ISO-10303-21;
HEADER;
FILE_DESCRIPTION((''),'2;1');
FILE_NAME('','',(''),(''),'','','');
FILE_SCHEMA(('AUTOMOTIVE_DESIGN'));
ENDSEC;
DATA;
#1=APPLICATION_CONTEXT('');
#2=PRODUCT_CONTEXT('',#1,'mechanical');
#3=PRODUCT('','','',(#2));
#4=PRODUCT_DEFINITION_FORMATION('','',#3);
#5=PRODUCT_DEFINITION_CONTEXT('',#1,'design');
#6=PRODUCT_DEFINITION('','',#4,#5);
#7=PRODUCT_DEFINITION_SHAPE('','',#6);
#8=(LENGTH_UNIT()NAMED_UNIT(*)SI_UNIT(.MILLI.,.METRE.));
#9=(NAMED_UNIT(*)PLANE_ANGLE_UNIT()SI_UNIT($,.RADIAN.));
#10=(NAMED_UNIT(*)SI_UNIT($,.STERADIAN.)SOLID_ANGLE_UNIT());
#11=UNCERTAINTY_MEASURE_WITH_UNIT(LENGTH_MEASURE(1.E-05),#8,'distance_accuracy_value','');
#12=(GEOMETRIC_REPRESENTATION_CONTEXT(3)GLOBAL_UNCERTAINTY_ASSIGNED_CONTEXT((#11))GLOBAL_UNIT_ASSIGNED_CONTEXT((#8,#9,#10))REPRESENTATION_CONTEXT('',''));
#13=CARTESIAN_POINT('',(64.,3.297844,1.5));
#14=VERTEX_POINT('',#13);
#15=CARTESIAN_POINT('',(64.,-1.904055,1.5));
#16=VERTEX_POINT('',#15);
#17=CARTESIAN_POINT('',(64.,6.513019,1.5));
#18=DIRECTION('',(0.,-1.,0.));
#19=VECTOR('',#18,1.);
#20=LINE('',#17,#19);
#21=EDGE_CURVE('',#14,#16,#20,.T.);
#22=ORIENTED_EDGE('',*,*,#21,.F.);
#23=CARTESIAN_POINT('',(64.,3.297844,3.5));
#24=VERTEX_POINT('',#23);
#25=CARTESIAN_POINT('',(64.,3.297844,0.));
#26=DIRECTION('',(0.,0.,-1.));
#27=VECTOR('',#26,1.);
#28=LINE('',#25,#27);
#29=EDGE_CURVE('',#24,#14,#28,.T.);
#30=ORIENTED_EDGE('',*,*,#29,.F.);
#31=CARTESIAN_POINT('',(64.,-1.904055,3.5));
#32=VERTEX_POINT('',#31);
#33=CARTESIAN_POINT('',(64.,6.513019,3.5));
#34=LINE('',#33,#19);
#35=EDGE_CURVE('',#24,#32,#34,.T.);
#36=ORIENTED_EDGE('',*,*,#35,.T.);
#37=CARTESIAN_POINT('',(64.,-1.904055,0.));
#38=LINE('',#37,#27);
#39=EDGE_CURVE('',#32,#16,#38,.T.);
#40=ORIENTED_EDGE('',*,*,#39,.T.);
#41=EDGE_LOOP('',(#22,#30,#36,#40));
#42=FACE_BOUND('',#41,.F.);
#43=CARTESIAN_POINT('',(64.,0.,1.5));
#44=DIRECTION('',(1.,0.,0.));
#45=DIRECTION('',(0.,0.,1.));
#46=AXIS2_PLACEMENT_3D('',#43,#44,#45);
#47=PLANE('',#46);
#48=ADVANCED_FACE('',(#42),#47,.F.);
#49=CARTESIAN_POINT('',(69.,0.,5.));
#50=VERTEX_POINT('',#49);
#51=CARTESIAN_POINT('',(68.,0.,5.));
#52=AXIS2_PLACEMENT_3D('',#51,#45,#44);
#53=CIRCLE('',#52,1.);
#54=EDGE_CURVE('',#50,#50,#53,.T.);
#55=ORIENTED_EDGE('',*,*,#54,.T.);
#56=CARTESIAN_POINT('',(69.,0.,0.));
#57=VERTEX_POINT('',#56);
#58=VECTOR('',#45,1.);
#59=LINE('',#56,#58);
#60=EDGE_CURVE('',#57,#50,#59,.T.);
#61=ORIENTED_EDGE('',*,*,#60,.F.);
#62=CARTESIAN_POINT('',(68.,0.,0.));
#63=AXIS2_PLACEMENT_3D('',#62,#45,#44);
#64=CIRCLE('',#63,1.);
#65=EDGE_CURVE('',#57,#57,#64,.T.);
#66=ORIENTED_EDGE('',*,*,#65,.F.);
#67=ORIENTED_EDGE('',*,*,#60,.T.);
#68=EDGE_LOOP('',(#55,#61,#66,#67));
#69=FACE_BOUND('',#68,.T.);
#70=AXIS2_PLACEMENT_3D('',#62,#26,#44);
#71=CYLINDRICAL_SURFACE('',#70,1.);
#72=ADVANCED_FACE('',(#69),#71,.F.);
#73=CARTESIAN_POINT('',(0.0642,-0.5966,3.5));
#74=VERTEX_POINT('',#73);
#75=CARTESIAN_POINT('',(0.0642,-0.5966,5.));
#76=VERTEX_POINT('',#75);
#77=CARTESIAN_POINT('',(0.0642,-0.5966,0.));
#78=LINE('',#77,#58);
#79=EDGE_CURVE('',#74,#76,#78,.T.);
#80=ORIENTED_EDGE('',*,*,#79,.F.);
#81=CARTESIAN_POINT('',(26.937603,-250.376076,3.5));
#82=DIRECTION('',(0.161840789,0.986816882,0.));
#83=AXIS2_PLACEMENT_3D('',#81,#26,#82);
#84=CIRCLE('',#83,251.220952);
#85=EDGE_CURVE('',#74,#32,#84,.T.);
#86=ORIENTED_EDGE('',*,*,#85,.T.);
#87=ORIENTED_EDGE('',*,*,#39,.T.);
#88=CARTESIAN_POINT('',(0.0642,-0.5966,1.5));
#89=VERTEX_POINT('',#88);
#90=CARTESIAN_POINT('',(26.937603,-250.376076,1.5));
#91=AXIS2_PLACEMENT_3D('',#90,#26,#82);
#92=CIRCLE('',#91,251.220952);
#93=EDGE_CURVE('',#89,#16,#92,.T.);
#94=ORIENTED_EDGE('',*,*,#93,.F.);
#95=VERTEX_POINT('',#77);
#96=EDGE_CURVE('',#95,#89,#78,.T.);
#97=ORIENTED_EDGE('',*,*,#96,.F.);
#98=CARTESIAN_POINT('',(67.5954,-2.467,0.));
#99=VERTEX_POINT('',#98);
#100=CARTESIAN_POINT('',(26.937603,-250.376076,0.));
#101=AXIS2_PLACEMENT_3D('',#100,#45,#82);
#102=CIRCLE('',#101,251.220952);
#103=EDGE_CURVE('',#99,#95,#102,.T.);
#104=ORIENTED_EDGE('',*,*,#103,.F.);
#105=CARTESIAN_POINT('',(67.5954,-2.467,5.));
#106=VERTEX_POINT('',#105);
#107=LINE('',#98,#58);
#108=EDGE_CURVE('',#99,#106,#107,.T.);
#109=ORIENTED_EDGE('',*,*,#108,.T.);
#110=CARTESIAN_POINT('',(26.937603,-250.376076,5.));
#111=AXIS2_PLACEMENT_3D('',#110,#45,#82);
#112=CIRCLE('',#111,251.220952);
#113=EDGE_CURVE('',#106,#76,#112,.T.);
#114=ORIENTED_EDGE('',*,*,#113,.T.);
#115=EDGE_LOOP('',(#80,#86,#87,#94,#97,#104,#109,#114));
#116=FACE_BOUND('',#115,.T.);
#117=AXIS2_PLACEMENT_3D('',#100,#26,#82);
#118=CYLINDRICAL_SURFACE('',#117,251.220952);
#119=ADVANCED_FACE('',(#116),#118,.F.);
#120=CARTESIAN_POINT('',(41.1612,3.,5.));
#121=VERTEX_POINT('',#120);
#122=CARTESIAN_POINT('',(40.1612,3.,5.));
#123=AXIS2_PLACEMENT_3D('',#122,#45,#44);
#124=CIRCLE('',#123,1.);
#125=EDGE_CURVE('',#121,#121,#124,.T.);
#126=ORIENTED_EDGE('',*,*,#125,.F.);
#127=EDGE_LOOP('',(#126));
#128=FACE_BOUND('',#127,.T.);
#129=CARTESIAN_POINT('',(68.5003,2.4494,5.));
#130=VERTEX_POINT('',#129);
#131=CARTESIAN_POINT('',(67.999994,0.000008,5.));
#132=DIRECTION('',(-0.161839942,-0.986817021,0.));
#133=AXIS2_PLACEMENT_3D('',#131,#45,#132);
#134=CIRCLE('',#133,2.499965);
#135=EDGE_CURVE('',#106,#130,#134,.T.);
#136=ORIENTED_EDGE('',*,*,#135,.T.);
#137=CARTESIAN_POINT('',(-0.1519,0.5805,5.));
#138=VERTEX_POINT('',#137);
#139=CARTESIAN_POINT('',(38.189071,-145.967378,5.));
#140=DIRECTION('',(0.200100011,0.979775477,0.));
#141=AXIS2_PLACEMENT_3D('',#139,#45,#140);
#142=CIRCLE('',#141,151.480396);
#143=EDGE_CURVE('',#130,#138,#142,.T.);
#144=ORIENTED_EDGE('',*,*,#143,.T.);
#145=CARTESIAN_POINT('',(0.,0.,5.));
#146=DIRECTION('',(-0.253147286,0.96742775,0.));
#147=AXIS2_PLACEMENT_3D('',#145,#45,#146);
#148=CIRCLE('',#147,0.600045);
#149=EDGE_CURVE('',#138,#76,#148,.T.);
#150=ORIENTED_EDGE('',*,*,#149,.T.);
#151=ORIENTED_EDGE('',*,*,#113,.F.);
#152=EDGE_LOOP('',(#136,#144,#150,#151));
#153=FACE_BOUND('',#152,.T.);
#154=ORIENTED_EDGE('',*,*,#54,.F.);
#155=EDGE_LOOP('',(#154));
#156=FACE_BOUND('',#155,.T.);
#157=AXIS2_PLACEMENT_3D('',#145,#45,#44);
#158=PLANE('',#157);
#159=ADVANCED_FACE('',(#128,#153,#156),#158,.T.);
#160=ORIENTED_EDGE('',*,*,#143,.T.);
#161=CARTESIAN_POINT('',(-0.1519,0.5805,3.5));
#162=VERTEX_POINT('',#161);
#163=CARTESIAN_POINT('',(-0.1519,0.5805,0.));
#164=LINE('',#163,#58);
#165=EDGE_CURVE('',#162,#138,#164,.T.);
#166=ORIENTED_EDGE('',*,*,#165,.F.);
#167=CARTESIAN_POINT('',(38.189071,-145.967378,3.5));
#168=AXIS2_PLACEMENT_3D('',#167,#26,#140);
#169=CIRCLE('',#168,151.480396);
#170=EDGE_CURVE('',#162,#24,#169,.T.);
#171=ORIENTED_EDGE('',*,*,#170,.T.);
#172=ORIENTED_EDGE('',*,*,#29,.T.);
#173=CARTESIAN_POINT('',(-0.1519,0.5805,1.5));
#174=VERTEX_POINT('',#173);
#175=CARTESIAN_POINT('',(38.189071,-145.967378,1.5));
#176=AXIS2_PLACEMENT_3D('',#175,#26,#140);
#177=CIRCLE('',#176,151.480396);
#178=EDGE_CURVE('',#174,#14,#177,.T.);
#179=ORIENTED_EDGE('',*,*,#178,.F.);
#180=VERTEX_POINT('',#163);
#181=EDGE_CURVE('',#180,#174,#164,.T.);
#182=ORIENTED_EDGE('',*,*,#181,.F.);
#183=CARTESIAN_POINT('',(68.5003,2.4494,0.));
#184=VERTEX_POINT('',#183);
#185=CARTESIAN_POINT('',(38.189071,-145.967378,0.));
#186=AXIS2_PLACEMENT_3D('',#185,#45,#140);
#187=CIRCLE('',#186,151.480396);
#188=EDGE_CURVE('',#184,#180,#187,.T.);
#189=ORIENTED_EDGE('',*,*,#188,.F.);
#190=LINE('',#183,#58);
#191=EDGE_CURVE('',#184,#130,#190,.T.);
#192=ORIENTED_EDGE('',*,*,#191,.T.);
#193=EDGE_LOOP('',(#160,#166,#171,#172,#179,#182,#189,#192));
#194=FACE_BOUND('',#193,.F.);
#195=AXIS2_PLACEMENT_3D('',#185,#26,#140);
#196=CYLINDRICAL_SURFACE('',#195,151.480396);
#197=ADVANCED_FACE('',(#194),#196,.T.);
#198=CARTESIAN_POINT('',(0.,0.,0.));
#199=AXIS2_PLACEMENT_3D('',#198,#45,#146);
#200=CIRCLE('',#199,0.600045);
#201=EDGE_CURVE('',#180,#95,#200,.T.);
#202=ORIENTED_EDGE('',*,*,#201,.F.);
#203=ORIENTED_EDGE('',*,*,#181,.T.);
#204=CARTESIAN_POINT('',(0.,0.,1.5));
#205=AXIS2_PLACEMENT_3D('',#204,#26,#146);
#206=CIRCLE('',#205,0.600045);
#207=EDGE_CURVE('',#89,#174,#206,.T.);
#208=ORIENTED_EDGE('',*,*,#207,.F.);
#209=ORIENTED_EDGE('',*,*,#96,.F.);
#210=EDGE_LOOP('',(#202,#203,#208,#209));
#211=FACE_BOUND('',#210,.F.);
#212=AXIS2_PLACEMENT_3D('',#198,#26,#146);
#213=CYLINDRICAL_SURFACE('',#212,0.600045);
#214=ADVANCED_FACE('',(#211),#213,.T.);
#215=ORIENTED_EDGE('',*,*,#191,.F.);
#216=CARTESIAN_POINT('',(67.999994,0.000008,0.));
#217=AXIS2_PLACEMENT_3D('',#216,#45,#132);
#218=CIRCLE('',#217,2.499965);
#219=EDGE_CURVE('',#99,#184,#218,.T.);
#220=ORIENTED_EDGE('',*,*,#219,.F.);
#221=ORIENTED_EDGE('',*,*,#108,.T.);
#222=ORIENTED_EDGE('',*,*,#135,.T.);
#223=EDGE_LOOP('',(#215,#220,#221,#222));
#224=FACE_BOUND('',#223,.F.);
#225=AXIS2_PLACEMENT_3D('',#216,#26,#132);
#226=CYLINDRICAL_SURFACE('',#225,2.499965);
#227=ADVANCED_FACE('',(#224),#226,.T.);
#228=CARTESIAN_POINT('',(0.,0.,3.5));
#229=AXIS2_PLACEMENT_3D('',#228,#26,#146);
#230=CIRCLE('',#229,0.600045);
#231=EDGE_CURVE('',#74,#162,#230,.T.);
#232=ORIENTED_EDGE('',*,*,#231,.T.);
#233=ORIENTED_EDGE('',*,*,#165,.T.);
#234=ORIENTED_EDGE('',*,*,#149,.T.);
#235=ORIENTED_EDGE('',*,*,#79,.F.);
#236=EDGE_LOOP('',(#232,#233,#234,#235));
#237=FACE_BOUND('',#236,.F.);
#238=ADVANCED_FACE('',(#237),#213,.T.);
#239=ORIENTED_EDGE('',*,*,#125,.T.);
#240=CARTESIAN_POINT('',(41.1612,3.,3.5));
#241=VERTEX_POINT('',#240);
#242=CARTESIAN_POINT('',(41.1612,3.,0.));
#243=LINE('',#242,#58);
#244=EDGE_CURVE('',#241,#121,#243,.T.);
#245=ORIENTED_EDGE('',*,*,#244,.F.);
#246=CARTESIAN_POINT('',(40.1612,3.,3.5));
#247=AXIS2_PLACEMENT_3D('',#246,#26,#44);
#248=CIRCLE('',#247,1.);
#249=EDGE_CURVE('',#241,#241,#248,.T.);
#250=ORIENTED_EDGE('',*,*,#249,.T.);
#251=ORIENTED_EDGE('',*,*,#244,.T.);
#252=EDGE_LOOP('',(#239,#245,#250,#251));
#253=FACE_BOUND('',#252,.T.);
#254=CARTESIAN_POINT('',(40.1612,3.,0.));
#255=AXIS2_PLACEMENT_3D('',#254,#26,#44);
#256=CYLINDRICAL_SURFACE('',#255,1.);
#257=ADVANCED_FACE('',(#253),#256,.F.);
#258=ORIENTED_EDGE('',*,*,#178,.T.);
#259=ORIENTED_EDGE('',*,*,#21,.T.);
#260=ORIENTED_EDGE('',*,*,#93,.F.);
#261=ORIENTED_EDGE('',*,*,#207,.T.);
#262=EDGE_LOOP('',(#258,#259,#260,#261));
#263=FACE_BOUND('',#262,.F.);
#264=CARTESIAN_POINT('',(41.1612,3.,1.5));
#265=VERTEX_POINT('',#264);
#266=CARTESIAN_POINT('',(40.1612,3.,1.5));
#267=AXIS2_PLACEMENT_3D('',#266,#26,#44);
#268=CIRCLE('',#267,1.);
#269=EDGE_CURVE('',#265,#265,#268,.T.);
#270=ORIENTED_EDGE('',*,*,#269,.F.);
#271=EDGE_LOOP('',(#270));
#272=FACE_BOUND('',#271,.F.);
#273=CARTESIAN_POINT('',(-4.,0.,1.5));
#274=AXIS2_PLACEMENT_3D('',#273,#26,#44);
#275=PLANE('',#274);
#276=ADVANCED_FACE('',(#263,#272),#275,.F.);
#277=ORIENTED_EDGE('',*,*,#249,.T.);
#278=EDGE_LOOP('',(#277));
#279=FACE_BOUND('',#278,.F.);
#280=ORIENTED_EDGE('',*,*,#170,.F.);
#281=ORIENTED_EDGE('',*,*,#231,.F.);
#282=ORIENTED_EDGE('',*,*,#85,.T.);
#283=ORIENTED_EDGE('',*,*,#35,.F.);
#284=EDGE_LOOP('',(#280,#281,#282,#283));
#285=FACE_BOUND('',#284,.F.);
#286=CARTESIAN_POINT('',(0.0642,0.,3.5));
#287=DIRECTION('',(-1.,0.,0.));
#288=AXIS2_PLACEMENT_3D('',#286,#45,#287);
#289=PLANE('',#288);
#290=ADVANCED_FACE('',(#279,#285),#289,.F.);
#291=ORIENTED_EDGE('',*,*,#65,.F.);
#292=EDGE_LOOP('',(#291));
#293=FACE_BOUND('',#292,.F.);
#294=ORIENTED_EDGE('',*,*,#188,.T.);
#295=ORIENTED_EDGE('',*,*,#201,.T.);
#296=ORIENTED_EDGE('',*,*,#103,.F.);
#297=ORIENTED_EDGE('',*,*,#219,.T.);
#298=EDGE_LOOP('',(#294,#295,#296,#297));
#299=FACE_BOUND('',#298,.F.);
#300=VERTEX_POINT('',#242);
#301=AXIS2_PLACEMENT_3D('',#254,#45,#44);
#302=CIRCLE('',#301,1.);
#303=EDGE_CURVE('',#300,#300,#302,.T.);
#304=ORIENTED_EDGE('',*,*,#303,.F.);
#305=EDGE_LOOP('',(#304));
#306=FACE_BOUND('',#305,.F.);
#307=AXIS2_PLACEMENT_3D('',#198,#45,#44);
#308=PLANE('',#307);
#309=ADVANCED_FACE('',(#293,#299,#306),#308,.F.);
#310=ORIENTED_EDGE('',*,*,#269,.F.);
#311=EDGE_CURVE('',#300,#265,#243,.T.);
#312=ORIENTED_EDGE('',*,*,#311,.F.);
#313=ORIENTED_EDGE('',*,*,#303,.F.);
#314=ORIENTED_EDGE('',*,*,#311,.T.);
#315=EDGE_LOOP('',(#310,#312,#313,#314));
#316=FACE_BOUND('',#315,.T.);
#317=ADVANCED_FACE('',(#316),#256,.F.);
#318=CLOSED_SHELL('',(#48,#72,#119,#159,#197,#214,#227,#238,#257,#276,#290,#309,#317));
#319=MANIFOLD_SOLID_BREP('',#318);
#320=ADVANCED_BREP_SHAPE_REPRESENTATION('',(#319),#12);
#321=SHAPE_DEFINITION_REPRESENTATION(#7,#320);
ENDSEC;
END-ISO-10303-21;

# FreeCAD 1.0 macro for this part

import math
import FreeCAD as App
import Part
import Sketcher

V = App.Vector

doc = App.newDocument("Part")
body = doc.addObject("PartDesign::Body", "Body")

sketch1 = body.newObject("Sketcher::SketchObject", "Sketch")
sketch1.AttachmentSupport = (doc.getObject("XY_Plane"), [""])
sketch1.MapMode = "FlatFace"
sketch1.addGeometry([
    Part.ArcOfCircle(Part.Circle(V(38.2, -146, 0), V(0, 0, 1), 151.5), math.radians(78), math.radians(105)),
    Part.ArcOfCircle(Part.Circle(V(0, 0, 0), V(0, 0, 1), 0.6), math.radians(105), math.radians(276)),
    Part.ArcOfCircle(Part.Circle(V(26.9, -250.4, 0), V(0, 0, 1), 251.2), math.radians(80.69), math.radians(96.14)),
    Part.ArcOfCircle(Part.Circle(V(68, 0, 0), V(0, 0, 1), 2.5), math.radians(-99), math.radians(78)),
    Part.Circle(V(68, 0, 0), V(0, 0, 1), 1),
    Part.Circle(V(40.2, 3, 0), V(0, 0, 1), 1),
], False)
sketch1.addConstraint([
    Sketcher.Constraint("Tangent", 0, 2, 1, 1),
    Sketcher.Constraint("Tangent", 1, 2, 2, 2),
    Sketcher.Constraint("Tangent", 2, 1, 3, 1),
    Sketcher.Constraint("Tangent", 3, 2, 0, 1),
    Sketcher.Constraint("Coincident", 1, 3, -1, 1),
    Sketcher.Constraint("Coincident", 4, 3, 3, 3),
    Sketcher.Constraint("Equal", 4, 5),
    Sketcher.Constraint("PointOnObject", 3, 3, -1),
    Sketcher.Constraint("Diameter", 4, 2.0),
    Sketcher.Constraint("Radius", 1, 0.6),
    Sketcher.Constraint("Radius", 3, 2.5),
    Sketcher.Constraint("DistanceX", -1, 1, 3, 3, 68.0),
    Sketcher.Constraint("DistanceY", -1, 1, 5, 3, 3.0),
    Sketcher.Constraint("Radius", 2, 251.221),
    Sketcher.Constraint("Radius", 0, 151.4804),
    Sketcher.Constraint("DistanceX", 0, 2, 5, 3, 40.313),
])
pad1 = body.newObject("PartDesign::Pad", "Pad")
pad1.Profile = sketch1
pad1.Length = 5

sketch2 = body.newObject("Sketcher::SketchObject", "Sketch001")
sketch2.AttachmentSupport = (doc.getObject("XZ_Plane"), [""])
sketch2.MapMode = "FlatFace"
sketch2.addGeometry([
    Part.LineSegment(V(-4, 1.5, 0), V(-4, 3.5, 0)),
    Part.LineSegment(V(-4, 3.5, 0), V(64, 3.5, 0)),
    Part.LineSegment(V(64, 3.5, 0), V(64, 1.5, 0)),
    Part.LineSegment(V(64, 1.5, 0), V(-4, 1.5, 0)),
], False)
sketch2.addConstraint([
    Sketcher.Constraint("Coincident", 0, 2, 1, 1),
    Sketcher.Constraint("Coincident", 1, 2, 2, 1),
    Sketcher.Constraint("Coincident", 2, 2, 3, 1),
    Sketcher.Constraint("Coincident", 3, 2, 0, 1),
    Sketcher.Constraint("Vertical", 0),
    Sketcher.Constraint("Horizontal", 1),
    Sketcher.Constraint("Vertical", 2),
    Sketcher.Constraint("Horizontal", 3),
    Sketcher.Constraint("DistanceX", 1, 1, 1, 2, 68.0),
    Sketcher.Constraint("DistanceY", 0, 1, 0, 2, 2.0),
    Sketcher.Constraint("DistanceX", 0, 2, -1, 1, 4.0),
    Sketcher.Constraint("DistanceY", -1, 1, 2, 2, 1.5),
])
pocket1 = body.newObject("PartDesign::Pocket", "Pocket")
pocket1.Profile = sketch2
pocket1.Type = "ThroughAll"
pocket1.Midplane = True

doc.recompute()
